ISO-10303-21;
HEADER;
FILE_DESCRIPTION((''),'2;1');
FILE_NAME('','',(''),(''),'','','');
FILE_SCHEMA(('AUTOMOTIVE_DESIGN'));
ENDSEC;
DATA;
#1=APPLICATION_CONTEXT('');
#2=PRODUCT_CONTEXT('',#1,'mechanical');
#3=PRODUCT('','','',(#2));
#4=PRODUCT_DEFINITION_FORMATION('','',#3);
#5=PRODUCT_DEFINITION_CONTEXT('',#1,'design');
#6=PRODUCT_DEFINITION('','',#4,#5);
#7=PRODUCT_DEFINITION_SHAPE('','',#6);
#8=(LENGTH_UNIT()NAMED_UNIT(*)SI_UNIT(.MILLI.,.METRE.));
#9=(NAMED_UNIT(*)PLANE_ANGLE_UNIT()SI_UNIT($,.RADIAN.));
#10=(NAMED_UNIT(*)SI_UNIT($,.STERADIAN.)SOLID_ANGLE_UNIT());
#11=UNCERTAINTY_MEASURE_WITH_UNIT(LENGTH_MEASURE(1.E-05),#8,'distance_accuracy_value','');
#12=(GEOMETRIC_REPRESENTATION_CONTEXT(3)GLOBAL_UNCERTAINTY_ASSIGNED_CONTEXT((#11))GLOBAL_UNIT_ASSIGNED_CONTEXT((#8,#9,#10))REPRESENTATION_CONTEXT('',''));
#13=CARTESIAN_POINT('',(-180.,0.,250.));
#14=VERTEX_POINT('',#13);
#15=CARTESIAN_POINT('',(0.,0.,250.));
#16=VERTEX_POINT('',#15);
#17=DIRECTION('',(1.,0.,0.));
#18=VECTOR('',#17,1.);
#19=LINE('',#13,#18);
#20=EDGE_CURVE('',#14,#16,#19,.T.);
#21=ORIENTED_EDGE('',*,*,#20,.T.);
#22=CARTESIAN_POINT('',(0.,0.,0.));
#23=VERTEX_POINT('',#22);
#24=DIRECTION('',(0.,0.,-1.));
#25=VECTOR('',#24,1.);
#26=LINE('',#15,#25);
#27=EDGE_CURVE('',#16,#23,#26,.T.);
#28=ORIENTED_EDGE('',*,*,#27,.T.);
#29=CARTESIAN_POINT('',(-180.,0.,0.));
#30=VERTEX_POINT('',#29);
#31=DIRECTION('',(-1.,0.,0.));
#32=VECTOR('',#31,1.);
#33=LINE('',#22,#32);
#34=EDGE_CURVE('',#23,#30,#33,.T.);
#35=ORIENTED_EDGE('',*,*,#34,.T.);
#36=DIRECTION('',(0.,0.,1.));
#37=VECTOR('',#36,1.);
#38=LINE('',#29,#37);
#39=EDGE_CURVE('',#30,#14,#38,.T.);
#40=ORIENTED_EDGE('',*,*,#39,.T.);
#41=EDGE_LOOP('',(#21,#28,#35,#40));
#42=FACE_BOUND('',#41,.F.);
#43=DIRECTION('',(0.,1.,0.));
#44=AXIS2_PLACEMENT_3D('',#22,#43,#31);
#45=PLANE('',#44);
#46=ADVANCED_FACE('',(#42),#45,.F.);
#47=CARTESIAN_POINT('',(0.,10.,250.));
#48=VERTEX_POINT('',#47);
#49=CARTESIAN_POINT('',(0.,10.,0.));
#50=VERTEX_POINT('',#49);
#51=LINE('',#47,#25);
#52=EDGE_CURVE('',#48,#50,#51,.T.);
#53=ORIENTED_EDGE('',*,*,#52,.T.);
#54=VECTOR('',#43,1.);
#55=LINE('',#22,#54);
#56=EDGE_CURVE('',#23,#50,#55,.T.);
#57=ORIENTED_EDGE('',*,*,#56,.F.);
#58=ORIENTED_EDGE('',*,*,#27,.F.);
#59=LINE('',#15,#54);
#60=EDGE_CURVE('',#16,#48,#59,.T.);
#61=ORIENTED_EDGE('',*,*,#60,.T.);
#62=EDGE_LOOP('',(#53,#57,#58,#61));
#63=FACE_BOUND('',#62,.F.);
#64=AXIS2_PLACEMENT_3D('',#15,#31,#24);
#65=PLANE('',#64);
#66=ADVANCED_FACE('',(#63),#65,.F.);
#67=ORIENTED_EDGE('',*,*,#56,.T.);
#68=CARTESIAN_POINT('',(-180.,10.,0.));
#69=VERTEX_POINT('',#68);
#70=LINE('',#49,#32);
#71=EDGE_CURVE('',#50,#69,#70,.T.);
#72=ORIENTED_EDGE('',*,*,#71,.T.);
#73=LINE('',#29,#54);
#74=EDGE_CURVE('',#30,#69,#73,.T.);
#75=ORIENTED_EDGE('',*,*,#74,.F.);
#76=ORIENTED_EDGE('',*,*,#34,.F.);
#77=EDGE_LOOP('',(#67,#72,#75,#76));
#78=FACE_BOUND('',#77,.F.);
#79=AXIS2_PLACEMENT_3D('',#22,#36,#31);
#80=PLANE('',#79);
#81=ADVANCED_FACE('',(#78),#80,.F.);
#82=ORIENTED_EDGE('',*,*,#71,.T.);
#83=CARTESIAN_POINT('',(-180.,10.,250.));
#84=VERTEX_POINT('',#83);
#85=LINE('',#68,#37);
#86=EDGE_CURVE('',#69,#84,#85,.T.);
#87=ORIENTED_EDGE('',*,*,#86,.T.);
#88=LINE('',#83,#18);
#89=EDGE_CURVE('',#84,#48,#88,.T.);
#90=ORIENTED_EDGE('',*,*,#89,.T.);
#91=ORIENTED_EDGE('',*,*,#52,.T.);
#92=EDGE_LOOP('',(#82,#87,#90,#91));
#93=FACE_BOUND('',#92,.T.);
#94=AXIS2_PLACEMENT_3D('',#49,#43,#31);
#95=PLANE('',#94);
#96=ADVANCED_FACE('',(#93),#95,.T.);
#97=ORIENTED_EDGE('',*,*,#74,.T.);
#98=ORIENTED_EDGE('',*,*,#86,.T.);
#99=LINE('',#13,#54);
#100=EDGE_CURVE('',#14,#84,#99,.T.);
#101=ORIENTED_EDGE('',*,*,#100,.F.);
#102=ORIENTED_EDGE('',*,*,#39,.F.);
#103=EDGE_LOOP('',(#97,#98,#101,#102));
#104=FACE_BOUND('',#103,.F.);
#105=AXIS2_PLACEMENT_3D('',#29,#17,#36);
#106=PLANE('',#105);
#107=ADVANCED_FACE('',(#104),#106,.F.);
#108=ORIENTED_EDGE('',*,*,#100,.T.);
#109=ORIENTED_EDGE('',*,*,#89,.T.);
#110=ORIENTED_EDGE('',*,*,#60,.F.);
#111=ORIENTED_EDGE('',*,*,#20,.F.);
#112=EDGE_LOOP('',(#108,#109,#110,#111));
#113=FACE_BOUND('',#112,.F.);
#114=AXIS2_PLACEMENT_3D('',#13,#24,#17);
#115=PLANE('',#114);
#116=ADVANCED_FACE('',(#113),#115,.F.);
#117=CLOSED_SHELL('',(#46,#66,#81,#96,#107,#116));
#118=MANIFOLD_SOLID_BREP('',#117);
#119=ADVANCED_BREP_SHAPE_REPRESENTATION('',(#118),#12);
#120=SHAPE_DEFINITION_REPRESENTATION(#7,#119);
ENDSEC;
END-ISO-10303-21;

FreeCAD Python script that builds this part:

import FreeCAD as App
import Part
import Sketcher
Q = App.Units.Quantity

doc = App.newDocument("Part")
body = doc.addObject("PartDesign::Body", "Body")

# Sketch on XZ plane
sketch1 = body.newObject("Sketcher::SketchObject", "Sketch")
sketch1.AttachmentSupport = (doc.getObject("XZ_Plane"), [""])
sketch1.MapMode = "FlatFace"
sketch1.addGeometry([
    Part.LineSegment(App.Vector(0, 250, 0), App.Vector(0, 0, 0)),
    Part.LineSegment(App.Vector(0, 0, 0), App.Vector(-180, 0, 0)),
    Part.LineSegment(App.Vector(-180, 0, 0), App.Vector(-180, 250, 0)),
    Part.LineSegment(App.Vector(-180, 250, 0), App.Vector(0, 250, 0)),
], False)
sketch1.addConstraint([
    Sketcher.Constraint("Coincident", 0, 2, 1, 1),
    Sketcher.Constraint("Coincident", 1, 2, 2, 1),
    Sketcher.Constraint("Coincident", 2, 2, 3, 1),
    Sketcher.Constraint("Coincident", 3, 2, 0, 1),
    Sketcher.Constraint("Vertical", 0),
    Sketcher.Constraint("Horizontal", 1),
    Sketcher.Constraint("Vertical", 2),
    Sketcher.Constraint("Horizontal", 3),
    Sketcher.Constraint("Coincident", 0, 2, -1, 1),
    Sketcher.Constraint("DistanceX", 1, 2, 1, 1, Q("180 mm")),
    Sketcher.Constraint("DistanceY", 0, 2, 0, 1, Q("250 mm")),
])
pad1 = body.newObject("PartDesign::Pad", "Pad")
pad1.Profile = sketch1
pad1.Length = 10
pad1.Reversed = True

doc.recompute()
